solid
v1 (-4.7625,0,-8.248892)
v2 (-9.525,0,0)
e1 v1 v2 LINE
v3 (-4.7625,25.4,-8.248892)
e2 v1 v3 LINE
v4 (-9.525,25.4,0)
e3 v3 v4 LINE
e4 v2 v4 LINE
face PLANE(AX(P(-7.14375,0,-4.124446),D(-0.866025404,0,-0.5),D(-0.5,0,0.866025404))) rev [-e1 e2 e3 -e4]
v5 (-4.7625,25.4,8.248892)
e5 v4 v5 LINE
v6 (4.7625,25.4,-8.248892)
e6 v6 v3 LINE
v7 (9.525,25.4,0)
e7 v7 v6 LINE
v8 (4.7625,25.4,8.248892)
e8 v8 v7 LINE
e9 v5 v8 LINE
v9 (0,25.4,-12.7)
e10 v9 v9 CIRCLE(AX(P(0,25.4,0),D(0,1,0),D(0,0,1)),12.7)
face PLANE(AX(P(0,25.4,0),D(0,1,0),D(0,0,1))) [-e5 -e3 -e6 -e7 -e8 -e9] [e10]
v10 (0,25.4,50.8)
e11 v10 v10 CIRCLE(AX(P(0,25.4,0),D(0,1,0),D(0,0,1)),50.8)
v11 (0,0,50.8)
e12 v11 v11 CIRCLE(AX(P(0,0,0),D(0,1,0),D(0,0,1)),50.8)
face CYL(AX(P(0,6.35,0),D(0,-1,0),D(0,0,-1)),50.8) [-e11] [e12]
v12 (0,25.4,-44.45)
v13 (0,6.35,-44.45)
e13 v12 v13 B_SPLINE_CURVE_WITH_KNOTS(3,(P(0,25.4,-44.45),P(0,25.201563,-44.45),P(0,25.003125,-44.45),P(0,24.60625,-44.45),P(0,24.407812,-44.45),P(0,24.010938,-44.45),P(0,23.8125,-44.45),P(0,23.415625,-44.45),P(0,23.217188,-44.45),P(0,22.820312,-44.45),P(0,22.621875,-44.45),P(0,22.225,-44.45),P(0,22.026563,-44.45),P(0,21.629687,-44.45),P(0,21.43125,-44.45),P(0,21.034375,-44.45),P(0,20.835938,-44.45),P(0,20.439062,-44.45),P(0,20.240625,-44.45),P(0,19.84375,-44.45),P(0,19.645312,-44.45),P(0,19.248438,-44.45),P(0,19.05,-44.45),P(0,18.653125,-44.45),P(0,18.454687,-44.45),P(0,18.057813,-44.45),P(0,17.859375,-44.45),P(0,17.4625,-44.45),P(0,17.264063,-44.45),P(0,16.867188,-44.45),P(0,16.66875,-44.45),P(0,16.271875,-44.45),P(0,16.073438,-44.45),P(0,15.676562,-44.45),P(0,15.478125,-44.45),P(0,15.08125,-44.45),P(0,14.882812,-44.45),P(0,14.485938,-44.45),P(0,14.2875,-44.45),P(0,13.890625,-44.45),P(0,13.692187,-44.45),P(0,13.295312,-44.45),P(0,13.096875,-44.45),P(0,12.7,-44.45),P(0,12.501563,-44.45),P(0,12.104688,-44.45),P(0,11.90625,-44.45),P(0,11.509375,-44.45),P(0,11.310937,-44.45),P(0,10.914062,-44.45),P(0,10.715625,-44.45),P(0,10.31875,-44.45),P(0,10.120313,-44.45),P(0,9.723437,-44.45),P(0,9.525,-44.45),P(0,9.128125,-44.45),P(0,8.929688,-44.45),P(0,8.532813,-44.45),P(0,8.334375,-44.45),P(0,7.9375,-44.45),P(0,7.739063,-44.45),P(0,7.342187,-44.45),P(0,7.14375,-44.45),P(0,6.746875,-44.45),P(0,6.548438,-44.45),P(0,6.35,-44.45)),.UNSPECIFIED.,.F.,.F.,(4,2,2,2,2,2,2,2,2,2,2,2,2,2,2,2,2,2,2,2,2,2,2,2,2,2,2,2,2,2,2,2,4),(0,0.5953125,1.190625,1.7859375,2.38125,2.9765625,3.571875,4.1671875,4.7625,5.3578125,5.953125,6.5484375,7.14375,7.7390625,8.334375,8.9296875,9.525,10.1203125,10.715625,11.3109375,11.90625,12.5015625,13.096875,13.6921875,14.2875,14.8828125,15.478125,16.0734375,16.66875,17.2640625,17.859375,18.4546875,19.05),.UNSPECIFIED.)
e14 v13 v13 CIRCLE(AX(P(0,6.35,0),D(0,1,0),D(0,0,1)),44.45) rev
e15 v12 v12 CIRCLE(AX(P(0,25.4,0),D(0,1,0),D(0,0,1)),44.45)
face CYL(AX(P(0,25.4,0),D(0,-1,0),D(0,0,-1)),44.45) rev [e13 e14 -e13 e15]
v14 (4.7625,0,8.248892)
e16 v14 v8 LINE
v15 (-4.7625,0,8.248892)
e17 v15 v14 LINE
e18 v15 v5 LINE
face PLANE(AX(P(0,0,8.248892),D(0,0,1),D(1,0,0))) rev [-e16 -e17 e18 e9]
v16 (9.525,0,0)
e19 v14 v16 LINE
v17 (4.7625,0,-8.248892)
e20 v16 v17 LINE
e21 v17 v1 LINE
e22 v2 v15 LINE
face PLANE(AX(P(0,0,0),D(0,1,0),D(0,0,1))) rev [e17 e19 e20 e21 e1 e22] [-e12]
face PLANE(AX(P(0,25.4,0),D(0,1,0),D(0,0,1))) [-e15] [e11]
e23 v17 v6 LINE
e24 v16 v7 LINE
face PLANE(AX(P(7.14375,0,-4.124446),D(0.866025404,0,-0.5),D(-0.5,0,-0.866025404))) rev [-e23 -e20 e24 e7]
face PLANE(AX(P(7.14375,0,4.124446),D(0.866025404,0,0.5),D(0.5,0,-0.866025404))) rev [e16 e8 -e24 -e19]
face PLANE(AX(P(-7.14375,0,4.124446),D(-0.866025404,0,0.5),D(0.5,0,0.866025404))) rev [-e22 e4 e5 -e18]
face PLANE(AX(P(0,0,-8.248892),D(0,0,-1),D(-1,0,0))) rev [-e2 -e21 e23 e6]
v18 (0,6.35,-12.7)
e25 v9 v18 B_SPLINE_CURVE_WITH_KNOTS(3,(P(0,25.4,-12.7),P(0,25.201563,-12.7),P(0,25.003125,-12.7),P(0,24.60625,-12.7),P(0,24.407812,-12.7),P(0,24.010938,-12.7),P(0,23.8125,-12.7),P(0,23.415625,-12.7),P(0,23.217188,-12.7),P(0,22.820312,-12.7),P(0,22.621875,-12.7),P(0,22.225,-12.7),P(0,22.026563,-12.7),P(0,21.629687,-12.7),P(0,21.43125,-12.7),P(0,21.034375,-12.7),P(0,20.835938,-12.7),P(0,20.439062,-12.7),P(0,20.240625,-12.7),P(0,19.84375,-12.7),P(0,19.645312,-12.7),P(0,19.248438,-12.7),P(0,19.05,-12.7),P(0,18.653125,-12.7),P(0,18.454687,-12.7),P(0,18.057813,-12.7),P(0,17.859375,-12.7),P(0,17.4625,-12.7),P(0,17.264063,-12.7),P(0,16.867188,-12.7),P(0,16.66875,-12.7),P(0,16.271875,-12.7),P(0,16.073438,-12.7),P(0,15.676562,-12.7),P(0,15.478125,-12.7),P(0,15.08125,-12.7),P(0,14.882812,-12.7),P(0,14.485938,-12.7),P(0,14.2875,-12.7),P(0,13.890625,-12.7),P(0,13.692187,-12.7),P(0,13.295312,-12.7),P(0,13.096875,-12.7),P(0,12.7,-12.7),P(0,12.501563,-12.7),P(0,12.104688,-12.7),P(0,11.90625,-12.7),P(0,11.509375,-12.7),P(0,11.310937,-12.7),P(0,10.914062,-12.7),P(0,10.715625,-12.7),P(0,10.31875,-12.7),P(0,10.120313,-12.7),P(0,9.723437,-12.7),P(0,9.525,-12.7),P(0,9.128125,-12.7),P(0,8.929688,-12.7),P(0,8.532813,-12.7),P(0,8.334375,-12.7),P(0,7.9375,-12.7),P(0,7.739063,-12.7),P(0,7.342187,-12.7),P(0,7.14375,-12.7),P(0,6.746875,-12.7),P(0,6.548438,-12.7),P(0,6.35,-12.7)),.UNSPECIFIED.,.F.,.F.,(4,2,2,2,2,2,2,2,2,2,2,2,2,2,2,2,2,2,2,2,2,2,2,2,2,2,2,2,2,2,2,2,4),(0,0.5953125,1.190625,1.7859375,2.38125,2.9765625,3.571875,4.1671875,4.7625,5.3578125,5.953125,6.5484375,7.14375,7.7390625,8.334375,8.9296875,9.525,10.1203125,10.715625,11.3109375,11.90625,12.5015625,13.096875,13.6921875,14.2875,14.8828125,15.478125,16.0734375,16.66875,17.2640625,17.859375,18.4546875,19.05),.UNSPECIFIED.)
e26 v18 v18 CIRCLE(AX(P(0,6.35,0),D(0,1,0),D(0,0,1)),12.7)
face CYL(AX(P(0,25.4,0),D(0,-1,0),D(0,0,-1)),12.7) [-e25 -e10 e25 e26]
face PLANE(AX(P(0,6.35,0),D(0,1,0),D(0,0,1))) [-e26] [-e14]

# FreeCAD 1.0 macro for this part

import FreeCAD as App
import Part
import Sketcher
Q = App.Units.Quantity

doc = App.newDocument("Part")
body = doc.addObject("PartDesign::Body", "Body")

# Sketch on XZ plane
sketch1 = body.newObject("Sketcher::SketchObject", "Sketch")
sketch1.AttachmentSupport = (doc.getObject("XZ_Plane"), [""])
sketch1.MapMode = "FlatFace"
sketch1.addGeometry(Part.Circle(App.Vector(0, 0, 0), App.Vector(0, 0, 1), 51), False)
sketch1.addConstraint([
    Sketcher.Constraint("Coincident", 0, 3, -1, 1),
    Sketcher.Constraint("Diameter", 0, Q("4 in")),
])
pad1 = body.newObject("PartDesign::Pad", "Pad")
pad1.Profile = sketch1
pad1.Length = Q("0.25 in")
pad1.Reversed = True

# Sketch on XZ plane
sketch2 = body.newObject("Sketcher::SketchObject", "Sketch001")
sketch2.AttachmentSupport = (doc.getObject("XZ_Plane"), [""])
sketch2.MapMode = "FlatFace"
sketch2.AttachmentOffset = App.Placement(App.Vector(0, 0, -0.25 * 25.4), App.Rotation())
sketch2.addGeometry([
    Part.Circle(App.Vector(0, 0, 0), App.Vector(0, 0, 1), 51),
    Part.Circle(App.Vector(0, 0, 0), App.Vector(0, 0, 1), 44),
], False)
sketch2.addConstraint([
    Sketcher.Constraint("Coincident", 0, 3, -1, 1),
    Sketcher.Constraint("Coincident", 1, 3, -1, 1),
    Sketcher.Constraint("Diameter", 0, Q("4 in")),
    Sketcher.Constraint("Diameter", 1, Q("3.5 in")),
])
pad2 = body.newObject("PartDesign::Pad", "Pad001")
pad2.Profile = sketch2
pad2.Length = Q("0.75 in")
pad2.Reversed = True

# Sketch on XZ plane
sketch3 = body.newObject("Sketcher::SketchObject", "Sketch002")
sketch3.AttachmentSupport = (doc.getObject("XZ_Plane"), [""])
sketch3.MapMode = "FlatFace"
sketch3.AttachmentOffset = App.Placement(App.Vector(0, 0, -0.25 * 25.4), App.Rotation())
sketch3.addGeometry(Part.Circle(App.Vector(0, 0, 0), App.Vector(0, 0, 1), 13), False)
sketch3.addConstraint([
    Sketcher.Constraint("Coincident", 0, 3, -1, 1),
    Sketcher.Constraint("Diameter", 0, Q("1 in")),
])
pad3 = body.newObject("PartDesign::Pad", "Pad002")
pad3.Profile = sketch3
pad3.Length = Q("0.75 in")
pad3.Reversed = True

# Sketch on XZ plane
sketch4 = body.newObject("Sketcher::SketchObject", "Sketch003")
sketch4.AttachmentSupport = (doc.getObject("XZ_Plane"), [""])
sketch4.MapMode = "FlatFace"
sketch4.AttachmentOffset = App.Placement(App.Vector(0, 0, -1 * 25.4), App.Rotation())
sketch4.addGeometry([
    Part.LineSegment(App.Vector(-5, 8, 0), App.Vector(5, 8, 0)),  # 0
    Part.LineSegment(App.Vector(5, 8, 0), App.Vector(10, 0, 0)),  # 1
    Part.LineSegment(App.Vector(10, 0, 0), App.Vector(5, -8, 0)),  # 2
    Part.LineSegment(App.Vector(5, -8, 0), App.Vector(-5, -8, 0)),  # 3
    Part.LineSegment(App.Vector(-5, -8, 0), App.Vector(-10, 0, 0)),  # 4
    Part.LineSegment(App.Vector(-10, 0, 0), App.Vector(-5, 8, 0)),  # 5
], False)
sketch4.addConstraint([
    Sketcher.Constraint("Coincident", 0, 2, 1, 1),
    Sketcher.Constraint("Coincident", 1, 2, 2, 1),
    Sketcher.Constraint("Coincident", 2, 2, 3, 1),
    Sketcher.Constraint("Coincident", 3, 2, 4, 1),
    Sketcher.Constraint("Coincident", 4, 2, 5, 1),
    Sketcher.Constraint("Coincident", 5, 2, 0, 1),
    Sketcher.Constraint("Horizontal", 0),
    Sketcher.Constraint("Horizontal", 3),
    Sketcher.Constraint("Symmetric", 0, 2, 3, 2, -1, 1),
    Sketcher.Constraint("Symmetric", 1, 2, 4, 2, -1, 1),
    Sketcher.Constraint("PointOnObject", 1, 2, -1),
    Sketcher.Constraint("Parallel", 2, 5),
    Sketcher.Constraint("Vertical", 0, 2, 2, 2),
    Sketcher.Constraint("Angle", 1, Q("-60 deg")),
    Sketcher.Constraint("DistanceX", 0, 1, 0, 2, Q("0.375 in")),
    Sketcher.Constraint("DistanceX", 4, 2, 1, 2, Q("0.75 in")),
])
pocket1 = body.newObject("PartDesign::Pocket", "Pocket")
pocket1.Profile = sketch4
pocket1.Length = Q("1 in")
pocket1.Reversed = True

doc.recompute()
